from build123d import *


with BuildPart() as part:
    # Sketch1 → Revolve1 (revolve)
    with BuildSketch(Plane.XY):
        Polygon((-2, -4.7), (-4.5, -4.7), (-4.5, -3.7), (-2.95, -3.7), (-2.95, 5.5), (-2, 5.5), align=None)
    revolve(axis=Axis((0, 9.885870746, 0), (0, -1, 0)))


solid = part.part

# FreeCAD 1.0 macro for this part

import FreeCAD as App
import Part
import Sketcher

V = App.Vector
Q = App.Units.Quantity


def add_polygon(sketch, points):
    """Adds a closed chain of lines whose ends are joined by coincident constraints."""
    first, n = sketch.GeometryCount, len(points)
    for a, b in zip(points, points[1:] + points[:1]):
        sketch.addGeometry(Part.LineSegment(App.Vector(*a, 0), App.Vector(*b, 0)), False)
    for i in range(n):
        sketch.addConstraint(Sketcher.Constraint("Coincident", first + i, 2, first + (i + 1) % n, 1))

doc = App.newDocument("Part")
params = doc.addObject("Spreadsheet::Sheet", "Params")
for row, (alias, value) in enumerate([
    ("sketch1_height", "1 mm"),
    ("sketch1_width", "2.5 mm"),
    ("sketch1_height2", "10.2 mm"),
    ("sketch1_width2", "0.95 mm"),
    ("revolution_angle", "360 deg"),
], start=1):
    params.set(f"A{row}", alias)
    params.set(f"B{row}", "=" + value)
    params.setAlias(f"B{row}", alias)

body = doc.addObject("PartDesign::Body", "Body")

sketch1 = body.newObject("Sketcher::SketchObject", "Sketch")
sketch1.AttachmentSupport = (doc.getObject("XY_Plane"), [""])
sketch1.MapMode = "FlatFace"
add_polygon(sketch1, [(-4.5, -4.7), (-2, -4.7), (-2, 5.5), (-2.95, 5.5), (-2.95, -3.7), (-4.5, -3.7)])
sketch1.addConstraint([
    Sketcher.Constraint("Horizontal", 0),
    Sketcher.Constraint("Vertical", 1),
    Sketcher.Constraint("Horizontal", 2),
    Sketcher.Constraint("Vertical", 3),
    Sketcher.Constraint("Horizontal", 4),
    Sketcher.Constraint("Vertical", 5),
    Sketcher.Constraint("DistanceY", 5, 2, 5, 1, Q("1 mm")),
    Sketcher.Constraint("DistanceX", 0, 1, 0, 2, Q("2.5 mm")),
    Sketcher.Constraint("DistanceY", 1, 1, 1, 2, Q("10.2 mm")),
    Sketcher.Constraint("DistanceX", 0, 2, -1, 1, Q("2 mm")),
    Sketcher.Constraint("DistanceX", 2, 2, 2, 1, Q("0.95 mm")),
    Sketcher.Constraint("DistanceY", 0, 2, -1, 1, Q("4.7 mm")),
])
sketch1.setExpression("Constraints[12]", "Params.sketch1_height")
sketch1.setExpression("Constraints[13]", "Params.sketch1_width")
sketch1.setExpression("Constraints[14]", "Params.sketch1_height2")
sketch1.setExpression("Constraints[16]", "Params.sketch1_width2")
revolution = body.newObject("PartDesign::Revolution", "Revolution")
revolution.Profile = sketch1
revolution.ReferenceAxis = (sketch1, ["V_Axis"])
revolution.setExpression("Angle", "Params.revolution_angle")

doc.recompute()
